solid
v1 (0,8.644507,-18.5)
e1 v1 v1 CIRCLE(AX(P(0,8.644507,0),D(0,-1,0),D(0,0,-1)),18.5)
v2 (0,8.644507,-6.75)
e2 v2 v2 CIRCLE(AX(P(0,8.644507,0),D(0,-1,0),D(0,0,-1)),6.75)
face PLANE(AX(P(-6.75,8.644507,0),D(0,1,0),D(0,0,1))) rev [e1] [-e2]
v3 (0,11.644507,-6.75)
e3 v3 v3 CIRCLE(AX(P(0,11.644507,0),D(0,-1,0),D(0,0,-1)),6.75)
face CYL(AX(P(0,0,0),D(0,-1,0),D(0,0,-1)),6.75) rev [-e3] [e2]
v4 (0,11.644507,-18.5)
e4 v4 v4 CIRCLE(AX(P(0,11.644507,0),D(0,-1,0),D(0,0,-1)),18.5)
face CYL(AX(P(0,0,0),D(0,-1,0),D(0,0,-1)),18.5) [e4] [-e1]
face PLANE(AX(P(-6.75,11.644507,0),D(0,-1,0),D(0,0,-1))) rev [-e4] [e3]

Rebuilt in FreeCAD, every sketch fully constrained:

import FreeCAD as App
import Part
import Sketcher
from FreeCAD import Vector
Q = App.Units.Quantity

doc = App.newDocument("Part")
body = doc.addObject("PartDesign::Body", "Body")

# Sketch on XY plane
sketch1 = body.newObject("Sketcher::SketchObject", "Sketch")
sketch1.AttachmentSupport = (doc.getObject("XY_Plane"), [""])
sketch1.MapMode = "FlatFace"
sketch1.addGeometry([
    Part.LineSegment(Vector(-18.5, 11.644507, 0), Vector(-18.5, 8.644507, 0)),
    Part.LineSegment(Vector(-18.5, 8.644507, 0), Vector(-6.75, 8.644507, 0)),
    Part.LineSegment(Vector(-6.75, 8.644507, 0), Vector(-6.75, 11.644507, 0)),
    Part.LineSegment(Vector(-6.75, 11.644507, 0), Vector(-18.5, 11.644507, 0)),
], False)
sketch1.addConstraint([
    Sketcher.Constraint("Coincident", 0, 2, 1, 1),
    Sketcher.Constraint("Coincident", 1, 2, 2, 1),
    Sketcher.Constraint("Coincident", 2, 2, 3, 1),
    Sketcher.Constraint("Coincident", 3, 2, 0, 1),
    Sketcher.Constraint("Vertical", 0),
    Sketcher.Constraint("Horizontal", 1),
    Sketcher.Constraint("Vertical", 2),
    Sketcher.Constraint("Horizontal", 3),
    Sketcher.Constraint("DistanceY", 0, 2, 0, 1, Q("3 mm")),
    Sketcher.Constraint("DistanceX", 1, 1, 1, 2, Q("11.75 mm")),
    Sketcher.Constraint("DistanceX", 0, 2, -1, 1, Q("18.5 mm")),
    Sketcher.Constraint("DistanceY", -1, 1, 0, 2, Q("8.644507 mm")),
])
revolution = body.newObject("PartDesign::Revolution", "Revolution")
revolution.Profile = sketch1
revolution.ReferenceAxis = (sketch1, ["V_Axis"])
revolution.Angle = 360

doc.recompute()
